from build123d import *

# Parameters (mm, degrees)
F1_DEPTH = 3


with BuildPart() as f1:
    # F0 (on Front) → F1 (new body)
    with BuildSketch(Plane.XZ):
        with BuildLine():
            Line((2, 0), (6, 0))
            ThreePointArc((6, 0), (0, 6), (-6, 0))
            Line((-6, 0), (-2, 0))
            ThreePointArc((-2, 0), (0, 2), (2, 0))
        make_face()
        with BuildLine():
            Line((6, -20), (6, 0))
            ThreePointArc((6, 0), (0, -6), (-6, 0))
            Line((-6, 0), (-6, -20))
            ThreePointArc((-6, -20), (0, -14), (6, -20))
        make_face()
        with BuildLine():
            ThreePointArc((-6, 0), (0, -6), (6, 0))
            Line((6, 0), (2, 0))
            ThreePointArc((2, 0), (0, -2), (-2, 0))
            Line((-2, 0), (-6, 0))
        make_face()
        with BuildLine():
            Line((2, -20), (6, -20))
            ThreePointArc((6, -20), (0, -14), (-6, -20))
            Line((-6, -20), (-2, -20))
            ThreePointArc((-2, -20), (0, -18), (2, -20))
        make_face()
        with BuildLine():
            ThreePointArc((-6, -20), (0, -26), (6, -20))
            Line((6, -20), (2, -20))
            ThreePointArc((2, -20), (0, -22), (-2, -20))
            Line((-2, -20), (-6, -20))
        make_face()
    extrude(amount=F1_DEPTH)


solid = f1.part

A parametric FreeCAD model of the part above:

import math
import FreeCAD as App
import Part
import Sketcher

doc = App.newDocument("Part")
params = doc.addObject("Spreadsheet::Sheet", "Params")
for row, (alias, value) in enumerate([
    ("sketch1_diameter", "4 mm"),
    ("sketch1_radius", "6 mm"),
    ("sketch1_height", "20 mm"),
    ("pad1_length", "3 mm"),
], start=1):
    params.set(f"A{row}", alias)
    params.set(f"B{row}", "=" + value)
    params.setAlias(f"B{row}", alias)

body = doc.addObject("PartDesign::Body", "Body")

# Sketch on XZ plane
sketch1 = body.newObject("Sketcher::SketchObject", "Sketch")
sketch1.AttachmentSupport = (doc.getObject("XZ_Plane"), [""])
sketch1.MapMode = "FlatFace"
sketch1.addGeometry([
    Part.ArcOfCircle(Part.Circle(App.Vector(0, 0, 0), App.Vector(0, 0, 1), 6), math.radians(0), math.radians(180)),  # 0
    Part.LineSegment(App.Vector(-6, 0, 0), App.Vector(-6, -20, 0)),  # 1
    Part.ArcOfCircle(Part.Circle(App.Vector(0, -20, 0), App.Vector(0, 0, 1), 6), math.radians(180), math.radians(360)),  # 2
    Part.LineSegment(App.Vector(6, -20, 0), App.Vector(6, 0, 0)),  # 3
    Part.Circle(App.Vector(0, -20, 0), App.Vector(0, 0, 1), 2),  # 4
    Part.Circle(App.Vector(0, 0, 0), App.Vector(0, 0, 1), 2),  # 5
], False)
sketch1.addConstraint([
    Sketcher.Constraint("Tangent", 0, 2, 1, 1),
    Sketcher.Constraint("Tangent", 1, 2, 2, 1),
    Sketcher.Constraint("Tangent", 2, 2, 3, 1),
    Sketcher.Constraint("Tangent", 3, 2, 0, 1),
    Sketcher.Constraint("Vertical", 1),
    Sketcher.Constraint("Vertical", 3),
    Sketcher.Constraint("Coincident", 0, 3, -1, 1),
    Sketcher.Constraint("Coincident", 5, 3, -1, 1),
    Sketcher.Constraint("Coincident", 4, 3, 2, 3),
    Sketcher.Constraint("Equal", 4, 5),
    Sketcher.Constraint("Diameter", 4, 4.0),
    Sketcher.Constraint("Radius", 0, 6.0),
    Sketcher.Constraint("DistanceY", 1, 2, 1, 1, 20.0),
])
sketch1.setExpression("Constraints[10]", "Params.sketch1_diameter")
sketch1.setExpression("Constraints[11]", "Params.sketch1_radius")
sketch1.setExpression("Constraints[12]", "Params.sketch1_height")
pad1 = body.newObject("PartDesign::Pad", "Pad")
pad1.Profile = sketch1
pad1.setExpression("Length", "Params.pad1_length")

doc.recompute()
